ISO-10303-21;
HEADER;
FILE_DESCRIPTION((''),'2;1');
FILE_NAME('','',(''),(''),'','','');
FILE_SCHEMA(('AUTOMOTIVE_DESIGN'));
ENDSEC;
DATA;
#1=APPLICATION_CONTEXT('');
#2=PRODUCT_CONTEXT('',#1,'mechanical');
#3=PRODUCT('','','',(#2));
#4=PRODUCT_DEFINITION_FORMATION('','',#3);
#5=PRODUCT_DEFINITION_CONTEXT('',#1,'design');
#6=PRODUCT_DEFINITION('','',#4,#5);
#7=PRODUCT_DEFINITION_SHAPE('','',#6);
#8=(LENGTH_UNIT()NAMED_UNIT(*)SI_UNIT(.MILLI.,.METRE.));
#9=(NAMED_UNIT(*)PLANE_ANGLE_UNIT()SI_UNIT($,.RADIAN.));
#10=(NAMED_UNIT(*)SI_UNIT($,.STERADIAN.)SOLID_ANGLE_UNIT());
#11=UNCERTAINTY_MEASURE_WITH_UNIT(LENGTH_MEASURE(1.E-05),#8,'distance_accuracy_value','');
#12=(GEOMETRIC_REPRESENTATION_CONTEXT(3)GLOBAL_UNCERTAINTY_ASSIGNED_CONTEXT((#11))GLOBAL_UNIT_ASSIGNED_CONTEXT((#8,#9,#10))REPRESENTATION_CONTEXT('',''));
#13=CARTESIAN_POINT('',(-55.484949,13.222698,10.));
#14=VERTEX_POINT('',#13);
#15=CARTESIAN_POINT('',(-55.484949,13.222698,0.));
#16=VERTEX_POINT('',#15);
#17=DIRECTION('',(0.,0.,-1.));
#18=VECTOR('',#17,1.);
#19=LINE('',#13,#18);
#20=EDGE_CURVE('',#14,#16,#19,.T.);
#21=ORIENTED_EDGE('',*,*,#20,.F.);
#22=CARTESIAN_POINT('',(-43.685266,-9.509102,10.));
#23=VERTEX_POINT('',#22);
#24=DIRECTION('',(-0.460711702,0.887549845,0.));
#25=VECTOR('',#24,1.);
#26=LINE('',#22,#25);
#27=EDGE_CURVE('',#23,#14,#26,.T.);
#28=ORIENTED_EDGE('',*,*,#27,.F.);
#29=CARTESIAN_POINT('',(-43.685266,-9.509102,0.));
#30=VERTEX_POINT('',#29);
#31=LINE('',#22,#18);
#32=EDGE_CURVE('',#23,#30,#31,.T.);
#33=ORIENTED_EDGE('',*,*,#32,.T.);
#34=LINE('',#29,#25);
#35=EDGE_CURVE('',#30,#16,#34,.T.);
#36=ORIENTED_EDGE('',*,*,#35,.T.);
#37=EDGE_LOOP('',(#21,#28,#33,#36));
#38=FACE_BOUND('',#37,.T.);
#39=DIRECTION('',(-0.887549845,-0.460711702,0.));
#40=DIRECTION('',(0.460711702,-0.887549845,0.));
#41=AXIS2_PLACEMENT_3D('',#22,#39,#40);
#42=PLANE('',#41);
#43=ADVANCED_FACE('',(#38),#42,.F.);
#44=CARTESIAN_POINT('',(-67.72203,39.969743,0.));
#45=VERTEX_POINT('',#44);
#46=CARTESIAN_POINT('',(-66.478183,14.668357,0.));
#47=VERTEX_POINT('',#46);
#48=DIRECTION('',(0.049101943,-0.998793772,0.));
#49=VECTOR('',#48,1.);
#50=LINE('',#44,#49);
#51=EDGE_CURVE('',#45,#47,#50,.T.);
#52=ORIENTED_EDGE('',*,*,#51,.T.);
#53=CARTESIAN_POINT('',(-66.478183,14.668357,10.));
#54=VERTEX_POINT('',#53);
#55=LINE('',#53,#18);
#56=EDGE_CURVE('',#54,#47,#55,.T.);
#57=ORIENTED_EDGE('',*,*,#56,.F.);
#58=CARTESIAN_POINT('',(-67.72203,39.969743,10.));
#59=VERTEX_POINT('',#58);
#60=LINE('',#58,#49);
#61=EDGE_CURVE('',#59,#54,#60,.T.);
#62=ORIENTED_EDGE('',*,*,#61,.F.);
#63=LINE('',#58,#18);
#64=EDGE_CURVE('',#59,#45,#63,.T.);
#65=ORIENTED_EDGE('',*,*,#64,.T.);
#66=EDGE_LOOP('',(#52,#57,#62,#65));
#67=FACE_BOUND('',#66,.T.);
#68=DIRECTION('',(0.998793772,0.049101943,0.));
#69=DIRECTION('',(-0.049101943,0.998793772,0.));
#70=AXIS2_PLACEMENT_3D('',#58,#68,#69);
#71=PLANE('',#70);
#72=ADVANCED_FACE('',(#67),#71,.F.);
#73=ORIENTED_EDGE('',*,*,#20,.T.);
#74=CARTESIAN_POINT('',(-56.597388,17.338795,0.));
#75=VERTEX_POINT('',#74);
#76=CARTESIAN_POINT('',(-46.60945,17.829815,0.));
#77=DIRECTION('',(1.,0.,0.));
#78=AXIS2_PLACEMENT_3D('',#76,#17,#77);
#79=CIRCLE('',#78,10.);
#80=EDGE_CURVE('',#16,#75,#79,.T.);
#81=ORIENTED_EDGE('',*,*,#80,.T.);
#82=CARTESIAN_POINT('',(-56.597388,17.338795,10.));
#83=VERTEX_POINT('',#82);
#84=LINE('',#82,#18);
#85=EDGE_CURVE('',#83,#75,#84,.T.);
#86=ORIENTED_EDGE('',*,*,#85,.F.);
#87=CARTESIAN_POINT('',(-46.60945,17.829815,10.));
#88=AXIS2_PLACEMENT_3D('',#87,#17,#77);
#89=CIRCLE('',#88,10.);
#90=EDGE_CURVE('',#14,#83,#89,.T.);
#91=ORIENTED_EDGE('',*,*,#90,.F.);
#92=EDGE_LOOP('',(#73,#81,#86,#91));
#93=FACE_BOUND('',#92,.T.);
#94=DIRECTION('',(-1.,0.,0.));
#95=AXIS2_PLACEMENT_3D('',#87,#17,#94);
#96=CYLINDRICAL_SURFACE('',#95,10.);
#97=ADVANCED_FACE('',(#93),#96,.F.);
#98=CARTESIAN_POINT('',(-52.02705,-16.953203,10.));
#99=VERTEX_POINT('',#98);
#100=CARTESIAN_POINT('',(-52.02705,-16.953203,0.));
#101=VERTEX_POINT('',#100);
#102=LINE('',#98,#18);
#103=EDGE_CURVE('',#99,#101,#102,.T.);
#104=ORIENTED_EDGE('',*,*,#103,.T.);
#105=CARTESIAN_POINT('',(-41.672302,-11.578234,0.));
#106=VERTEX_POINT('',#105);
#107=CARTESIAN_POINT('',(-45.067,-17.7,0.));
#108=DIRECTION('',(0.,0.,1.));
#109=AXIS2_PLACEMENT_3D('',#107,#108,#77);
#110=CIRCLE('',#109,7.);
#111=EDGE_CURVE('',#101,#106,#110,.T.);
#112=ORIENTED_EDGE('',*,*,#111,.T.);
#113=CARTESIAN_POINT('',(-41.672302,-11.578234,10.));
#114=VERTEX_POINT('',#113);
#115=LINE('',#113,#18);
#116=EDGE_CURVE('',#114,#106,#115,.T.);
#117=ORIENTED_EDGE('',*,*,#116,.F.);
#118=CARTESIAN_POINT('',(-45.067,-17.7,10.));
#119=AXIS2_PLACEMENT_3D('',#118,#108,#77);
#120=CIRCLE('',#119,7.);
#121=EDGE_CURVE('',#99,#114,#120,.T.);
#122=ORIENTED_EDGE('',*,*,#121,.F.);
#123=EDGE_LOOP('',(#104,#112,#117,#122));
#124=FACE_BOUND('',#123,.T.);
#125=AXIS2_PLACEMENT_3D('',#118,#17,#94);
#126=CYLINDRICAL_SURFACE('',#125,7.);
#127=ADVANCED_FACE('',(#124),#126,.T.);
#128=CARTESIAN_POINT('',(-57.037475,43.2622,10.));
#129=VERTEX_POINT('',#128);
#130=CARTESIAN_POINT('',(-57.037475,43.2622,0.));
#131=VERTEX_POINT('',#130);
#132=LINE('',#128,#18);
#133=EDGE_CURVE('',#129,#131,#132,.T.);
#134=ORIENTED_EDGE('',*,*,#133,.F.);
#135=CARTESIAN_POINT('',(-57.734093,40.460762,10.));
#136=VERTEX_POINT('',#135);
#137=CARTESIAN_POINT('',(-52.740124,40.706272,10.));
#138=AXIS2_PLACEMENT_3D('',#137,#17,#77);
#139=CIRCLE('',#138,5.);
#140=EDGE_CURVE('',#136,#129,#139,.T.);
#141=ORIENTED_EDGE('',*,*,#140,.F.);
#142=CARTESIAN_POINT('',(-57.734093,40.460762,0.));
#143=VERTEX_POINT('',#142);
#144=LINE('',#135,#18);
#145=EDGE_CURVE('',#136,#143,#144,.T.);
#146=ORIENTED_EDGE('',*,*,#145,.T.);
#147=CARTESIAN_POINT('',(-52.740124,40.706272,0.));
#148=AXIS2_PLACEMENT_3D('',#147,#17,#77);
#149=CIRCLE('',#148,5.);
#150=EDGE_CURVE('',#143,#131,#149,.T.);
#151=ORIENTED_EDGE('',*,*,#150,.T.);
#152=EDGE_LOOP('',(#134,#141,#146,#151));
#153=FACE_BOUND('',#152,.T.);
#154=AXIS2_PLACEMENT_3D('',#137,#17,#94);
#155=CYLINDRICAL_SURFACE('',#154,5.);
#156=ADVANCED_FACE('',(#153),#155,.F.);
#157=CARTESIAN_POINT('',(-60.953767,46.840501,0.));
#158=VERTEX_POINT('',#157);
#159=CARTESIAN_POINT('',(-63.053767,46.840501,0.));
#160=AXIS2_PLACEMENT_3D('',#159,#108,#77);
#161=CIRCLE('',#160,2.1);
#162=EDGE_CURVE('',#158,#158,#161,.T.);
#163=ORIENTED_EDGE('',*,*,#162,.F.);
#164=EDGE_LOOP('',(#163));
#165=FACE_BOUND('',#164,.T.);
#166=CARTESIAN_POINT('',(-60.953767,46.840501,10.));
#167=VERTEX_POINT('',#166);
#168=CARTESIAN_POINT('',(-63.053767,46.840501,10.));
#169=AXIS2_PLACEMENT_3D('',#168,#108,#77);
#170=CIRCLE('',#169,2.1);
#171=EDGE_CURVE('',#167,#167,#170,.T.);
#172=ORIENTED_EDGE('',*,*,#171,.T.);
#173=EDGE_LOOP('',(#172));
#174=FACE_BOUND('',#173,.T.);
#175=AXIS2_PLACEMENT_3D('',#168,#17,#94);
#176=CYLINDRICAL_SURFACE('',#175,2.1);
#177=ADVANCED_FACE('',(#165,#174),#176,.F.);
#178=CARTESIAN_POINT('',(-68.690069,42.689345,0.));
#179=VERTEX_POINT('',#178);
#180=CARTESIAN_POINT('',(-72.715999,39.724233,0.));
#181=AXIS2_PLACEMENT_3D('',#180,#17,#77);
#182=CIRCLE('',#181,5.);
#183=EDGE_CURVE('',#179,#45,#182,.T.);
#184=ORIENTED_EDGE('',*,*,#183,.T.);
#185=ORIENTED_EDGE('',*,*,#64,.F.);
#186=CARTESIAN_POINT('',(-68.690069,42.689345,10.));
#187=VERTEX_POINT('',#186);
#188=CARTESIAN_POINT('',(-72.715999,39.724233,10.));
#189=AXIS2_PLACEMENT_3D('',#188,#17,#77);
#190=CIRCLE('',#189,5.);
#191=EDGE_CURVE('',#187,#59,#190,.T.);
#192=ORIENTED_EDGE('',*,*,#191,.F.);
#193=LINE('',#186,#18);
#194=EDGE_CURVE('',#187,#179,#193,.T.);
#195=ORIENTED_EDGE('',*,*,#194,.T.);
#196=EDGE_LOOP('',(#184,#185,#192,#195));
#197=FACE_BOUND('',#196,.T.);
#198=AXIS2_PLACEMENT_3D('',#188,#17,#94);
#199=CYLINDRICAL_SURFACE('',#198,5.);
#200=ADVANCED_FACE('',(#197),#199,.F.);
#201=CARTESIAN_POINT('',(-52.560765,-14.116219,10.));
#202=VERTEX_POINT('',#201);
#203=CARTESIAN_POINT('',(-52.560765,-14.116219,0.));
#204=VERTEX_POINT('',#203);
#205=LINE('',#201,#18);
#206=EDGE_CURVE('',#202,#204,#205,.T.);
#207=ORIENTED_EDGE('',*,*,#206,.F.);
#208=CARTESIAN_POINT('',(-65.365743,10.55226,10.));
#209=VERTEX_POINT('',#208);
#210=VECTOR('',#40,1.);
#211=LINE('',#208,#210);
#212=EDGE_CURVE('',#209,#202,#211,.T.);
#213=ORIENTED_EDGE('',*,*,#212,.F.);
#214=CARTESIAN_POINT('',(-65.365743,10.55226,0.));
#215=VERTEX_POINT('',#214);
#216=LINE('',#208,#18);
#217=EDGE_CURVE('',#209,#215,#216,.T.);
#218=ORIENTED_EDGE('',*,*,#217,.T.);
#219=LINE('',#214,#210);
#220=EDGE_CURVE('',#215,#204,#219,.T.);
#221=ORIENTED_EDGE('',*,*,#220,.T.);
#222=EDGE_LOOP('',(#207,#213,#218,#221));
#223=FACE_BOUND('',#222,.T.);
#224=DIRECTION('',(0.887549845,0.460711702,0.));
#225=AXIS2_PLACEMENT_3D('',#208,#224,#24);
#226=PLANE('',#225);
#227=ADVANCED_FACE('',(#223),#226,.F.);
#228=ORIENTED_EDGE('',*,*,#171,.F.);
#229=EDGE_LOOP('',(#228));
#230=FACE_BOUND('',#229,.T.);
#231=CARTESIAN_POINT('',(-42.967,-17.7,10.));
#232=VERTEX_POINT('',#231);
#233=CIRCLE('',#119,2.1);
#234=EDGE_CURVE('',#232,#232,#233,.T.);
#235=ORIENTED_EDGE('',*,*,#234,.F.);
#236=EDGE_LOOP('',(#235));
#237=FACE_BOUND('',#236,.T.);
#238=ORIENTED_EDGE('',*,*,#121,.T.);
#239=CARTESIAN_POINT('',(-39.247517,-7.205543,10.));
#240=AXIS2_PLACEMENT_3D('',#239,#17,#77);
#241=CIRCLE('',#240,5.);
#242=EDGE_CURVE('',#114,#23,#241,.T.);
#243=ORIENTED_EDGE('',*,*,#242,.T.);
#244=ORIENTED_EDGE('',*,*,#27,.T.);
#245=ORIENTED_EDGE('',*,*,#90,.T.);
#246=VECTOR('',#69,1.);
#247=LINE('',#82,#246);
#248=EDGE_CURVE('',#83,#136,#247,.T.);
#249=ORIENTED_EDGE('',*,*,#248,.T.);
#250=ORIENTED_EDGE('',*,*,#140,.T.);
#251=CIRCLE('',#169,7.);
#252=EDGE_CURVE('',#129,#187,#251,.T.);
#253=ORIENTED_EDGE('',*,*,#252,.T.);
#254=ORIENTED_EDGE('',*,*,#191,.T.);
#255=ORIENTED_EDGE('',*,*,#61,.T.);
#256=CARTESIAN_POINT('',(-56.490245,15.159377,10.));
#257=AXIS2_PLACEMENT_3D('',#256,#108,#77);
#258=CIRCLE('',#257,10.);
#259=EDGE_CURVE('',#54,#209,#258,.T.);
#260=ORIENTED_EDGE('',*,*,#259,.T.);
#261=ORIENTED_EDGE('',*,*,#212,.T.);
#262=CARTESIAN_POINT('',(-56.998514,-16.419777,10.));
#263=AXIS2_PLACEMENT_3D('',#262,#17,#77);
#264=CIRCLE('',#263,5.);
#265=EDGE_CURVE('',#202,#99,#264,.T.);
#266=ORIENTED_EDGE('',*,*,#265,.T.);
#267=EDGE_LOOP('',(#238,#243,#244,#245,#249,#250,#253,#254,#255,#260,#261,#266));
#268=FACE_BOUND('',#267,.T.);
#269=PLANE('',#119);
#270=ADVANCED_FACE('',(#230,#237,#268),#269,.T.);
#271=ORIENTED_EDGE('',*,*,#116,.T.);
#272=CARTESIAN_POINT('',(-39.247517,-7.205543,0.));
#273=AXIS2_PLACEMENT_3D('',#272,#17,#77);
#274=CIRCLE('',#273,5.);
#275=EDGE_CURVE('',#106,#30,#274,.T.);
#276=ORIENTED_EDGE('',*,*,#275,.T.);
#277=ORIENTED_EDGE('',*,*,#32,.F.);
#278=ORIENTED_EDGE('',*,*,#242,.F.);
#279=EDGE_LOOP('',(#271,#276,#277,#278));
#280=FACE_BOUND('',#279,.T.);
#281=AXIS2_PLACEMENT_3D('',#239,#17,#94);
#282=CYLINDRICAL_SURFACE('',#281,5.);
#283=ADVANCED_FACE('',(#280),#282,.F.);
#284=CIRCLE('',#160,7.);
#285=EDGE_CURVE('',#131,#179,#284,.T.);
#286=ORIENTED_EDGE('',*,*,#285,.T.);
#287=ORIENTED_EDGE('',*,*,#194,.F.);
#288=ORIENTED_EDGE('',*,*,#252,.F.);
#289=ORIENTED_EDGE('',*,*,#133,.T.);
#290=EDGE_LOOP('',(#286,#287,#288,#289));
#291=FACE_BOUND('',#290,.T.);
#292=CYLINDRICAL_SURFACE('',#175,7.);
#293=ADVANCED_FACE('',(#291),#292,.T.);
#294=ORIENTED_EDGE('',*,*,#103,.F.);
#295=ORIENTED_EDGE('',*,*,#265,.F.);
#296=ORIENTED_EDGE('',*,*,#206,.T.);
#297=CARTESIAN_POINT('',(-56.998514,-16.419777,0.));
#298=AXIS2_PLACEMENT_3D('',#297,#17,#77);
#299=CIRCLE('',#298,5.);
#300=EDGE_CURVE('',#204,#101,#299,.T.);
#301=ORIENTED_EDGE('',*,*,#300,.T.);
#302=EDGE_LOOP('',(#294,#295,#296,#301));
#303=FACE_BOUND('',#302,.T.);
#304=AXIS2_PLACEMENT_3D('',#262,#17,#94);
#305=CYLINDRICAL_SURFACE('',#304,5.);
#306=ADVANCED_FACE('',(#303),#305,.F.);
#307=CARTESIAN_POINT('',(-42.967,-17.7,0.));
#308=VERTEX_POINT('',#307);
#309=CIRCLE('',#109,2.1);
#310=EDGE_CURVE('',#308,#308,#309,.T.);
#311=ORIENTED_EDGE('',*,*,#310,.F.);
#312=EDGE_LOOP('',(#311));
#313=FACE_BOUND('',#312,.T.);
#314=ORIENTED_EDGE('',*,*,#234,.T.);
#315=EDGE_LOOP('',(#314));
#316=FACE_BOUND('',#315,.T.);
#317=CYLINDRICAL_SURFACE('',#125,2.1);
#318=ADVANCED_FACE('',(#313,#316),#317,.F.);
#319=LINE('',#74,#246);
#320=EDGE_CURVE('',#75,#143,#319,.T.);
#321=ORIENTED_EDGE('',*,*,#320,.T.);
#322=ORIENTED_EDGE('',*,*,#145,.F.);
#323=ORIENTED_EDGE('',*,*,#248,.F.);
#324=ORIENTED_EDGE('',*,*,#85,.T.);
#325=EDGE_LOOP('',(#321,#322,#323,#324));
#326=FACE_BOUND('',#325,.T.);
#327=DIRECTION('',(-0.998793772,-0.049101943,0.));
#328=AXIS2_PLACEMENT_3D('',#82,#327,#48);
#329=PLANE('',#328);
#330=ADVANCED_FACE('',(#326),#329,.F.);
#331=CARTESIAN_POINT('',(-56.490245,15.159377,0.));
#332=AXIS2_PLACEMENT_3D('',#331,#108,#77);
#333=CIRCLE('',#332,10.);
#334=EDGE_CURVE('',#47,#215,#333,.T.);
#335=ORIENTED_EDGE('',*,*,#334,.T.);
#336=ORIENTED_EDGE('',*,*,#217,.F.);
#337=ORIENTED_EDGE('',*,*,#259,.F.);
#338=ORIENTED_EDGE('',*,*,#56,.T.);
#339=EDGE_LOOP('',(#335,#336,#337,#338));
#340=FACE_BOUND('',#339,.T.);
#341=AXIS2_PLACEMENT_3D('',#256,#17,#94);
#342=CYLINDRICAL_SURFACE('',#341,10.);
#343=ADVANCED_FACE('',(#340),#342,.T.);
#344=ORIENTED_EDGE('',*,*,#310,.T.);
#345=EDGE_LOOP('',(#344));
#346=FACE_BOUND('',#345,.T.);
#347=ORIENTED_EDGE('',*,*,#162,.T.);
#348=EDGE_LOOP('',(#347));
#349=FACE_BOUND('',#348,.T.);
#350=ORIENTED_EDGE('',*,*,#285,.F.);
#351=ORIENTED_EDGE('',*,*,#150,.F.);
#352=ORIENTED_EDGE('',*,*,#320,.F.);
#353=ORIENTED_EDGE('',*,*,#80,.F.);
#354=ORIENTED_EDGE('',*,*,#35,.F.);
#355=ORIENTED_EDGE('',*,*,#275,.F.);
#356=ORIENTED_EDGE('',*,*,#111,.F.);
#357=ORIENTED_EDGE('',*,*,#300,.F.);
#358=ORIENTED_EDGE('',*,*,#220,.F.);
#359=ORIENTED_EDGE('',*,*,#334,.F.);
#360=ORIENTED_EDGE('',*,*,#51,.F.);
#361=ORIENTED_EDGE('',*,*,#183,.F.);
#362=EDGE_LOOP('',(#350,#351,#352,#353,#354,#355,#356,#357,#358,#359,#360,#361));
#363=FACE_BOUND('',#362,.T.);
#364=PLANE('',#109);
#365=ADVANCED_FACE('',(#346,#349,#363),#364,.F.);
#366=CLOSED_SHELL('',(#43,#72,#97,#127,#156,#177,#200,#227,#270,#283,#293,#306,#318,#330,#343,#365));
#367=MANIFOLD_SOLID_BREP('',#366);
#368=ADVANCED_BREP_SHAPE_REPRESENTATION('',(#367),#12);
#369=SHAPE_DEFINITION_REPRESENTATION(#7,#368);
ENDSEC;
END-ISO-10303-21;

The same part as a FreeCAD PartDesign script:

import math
import FreeCAD as App
import Part
import Sketcher

V = App.Vector

doc = App.newDocument("Part")
body = doc.addObject("PartDesign::Body", "Body")

# Sketch on XY plane
sketch1 = body.newObject("Sketcher::SketchObject", "Sketch")
sketch1.AttachmentSupport = (doc.getObject("XY_Plane"), [""])
sketch1.MapMode = "FlatFace"
sketch1.addGeometry(Part.LineSegment(V(-43.7, -9.5, 0), V(-55.5, 13.2, 0)), False)
sketch1.addGeometry(Part.ArcOfCircle(Part.Circle(V(-46.6, 17.8, 0), V(0, 0, 1), 10), math.radians(-177), math.radians(-153)), False)
sketch1.addGeometry(Part.LineSegment(V(-56.6, 17.3, 0), V(-57.7, 40.5, 0)), False)
sketch1.addGeometry(Part.ArcOfCircle(Part.Circle(V(-52.7, 40.7, 0), V(0, 0, 1), 5), math.radians(149), math.radians(183)), False)
sketch1.addGeometry(Part.ArcOfCircle(Part.Circle(V(-63.1, 46.8, 0), V(0, 0, 1), 7), math.radians(-31), math.radians(216)), False)
sketch1.addGeometry(Part.ArcOfCircle(Part.Circle(V(-72.7, 39.7, 0), V(0, 0, 1), 5), math.radians(3), math.radians(36)), False)
sketch1.addGeometry(Part.LineSegment(V(-67.7, 40, 0), V(-66.5, 14.7, 0)), False)
sketch1.addGeometry(Part.ArcOfCircle(Part.Circle(V(-56.5, 15.2, 0), V(0, 0, 1), 10), math.radians(-177), math.radians(-153)), False)
sketch1.addGeometry(Part.LineSegment(V(-65.4, 10.6, 0), V(-52.6, -14.1, 0)), False)
sketch1.addGeometry(Part.ArcOfCircle(Part.Circle(V(-57, -16.4, 0), V(0, 0, 1), 5), math.radians(-6), math.radians(27)), False)
sketch1.addGeometry(Part.ArcOfCircle(Part.Circle(V(-45.1, -17.7, 0), V(0, 0, 1), 7), math.radians(174), math.radians(421)), False)
sketch1.addGeometry(Part.ArcOfCircle(Part.Circle(V(-39.2, -7.2, 0), V(0, 0, 1), 5), math.radians(-153), math.radians(-119)), False)
sketch1.addGeometry(Part.Circle(V(-45.1, -17.7, 0), V(0, 0, 1), 2.1), False)
sketch1.addGeometry(Part.Circle(V(-63.1, 46.8, 0), V(0, 0, 1), 2.1), False)
sketch1.addConstraint(Sketcher.Constraint("Tangent", 0, 2, 1, 2))
sketch1.addConstraint(Sketcher.Constraint("Tangent", 1, 1, 2, 1))
sketch1.addConstraint(Sketcher.Constraint("Tangent", 2, 2, 3, 2))
sketch1.addConstraint(Sketcher.Constraint("Tangent", 3, 1, 4, 1))
sketch1.addConstraint(Sketcher.Constraint("Tangent", 4, 2, 5, 2))
sketch1.addConstraint(Sketcher.Constraint("Tangent", 5, 1, 6, 1))
sketch1.addConstraint(Sketcher.Constraint("Tangent", 6, 2, 7, 1))
sketch1.addConstraint(Sketcher.Constraint("Tangent", 7, 2, 8, 1))
sketch1.addConstraint(Sketcher.Constraint("Tangent", 8, 2, 9, 2))
sketch1.addConstraint(Sketcher.Constraint("Tangent", 9, 1, 10, 1))
sketch1.addConstraint(Sketcher.Constraint("Tangent", 10, 2, 11, 2))
sketch1.addConstraint(Sketcher.Constraint("Tangent", 11, 1, 0, 1))
sketch1.addConstraint(Sketcher.Constraint("Coincident", 12, 3, 10, 3))
sketch1.addConstraint(Sketcher.Constraint("Coincident", 13, 3, 4, 3))
sketch1.addConstraint(Sketcher.Constraint("Equal", 3, 5))
sketch1.addConstraint(Sketcher.Constraint("Equal", 1, 7))
sketch1.addConstraint(Sketcher.Constraint("Equal", 5, 9))
sketch1.addConstraint(Sketcher.Constraint("Equal", 4, 10))
sketch1.addConstraint(Sketcher.Constraint("Equal", 9, 11))
sketch1.addConstraint(Sketcher.Constraint("Equal", 12, 13))
sketch1.addConstraint(Sketcher.Constraint("Parallel", 2, 6))
sketch1.addConstraint(Sketcher.Constraint("Parallel", 0, 8))
sketch1.addConstraint(Sketcher.Constraint("Radius", 1, 10.0))
sketch1.addConstraint(Sketcher.Constraint("Radius", 3, 5.0))
sketch1.addConstraint(Sketcher.Constraint("Radius", 4, 7.0))
sketch1.addConstraint(Sketcher.Constraint("Diameter", 12, 4.2))
sketch1.addConstraint(Sketcher.Constraint("DistanceY", 10, 3, -1, 1, 17.7))
sketch1.addConstraint(Sketcher.Constraint("DistanceX", 5, 3, -1, 1, 72.715999))
sketch1.addConstraint(Sketcher.Constraint("DistanceX", 10, 3, -1, 1, 45.067))
sketch1.addConstraint(Sketcher.Constraint("DistanceY", -1, 1, 4, 3, 46.840501))
sketch1.addConstraint(Sketcher.Constraint("DistanceY", -1, 1, 3, 1, 43.2622))
sketch1.addConstraint(Sketcher.Constraint("DistanceX", 10, 2, -1, 1, 41.672302))
sketch1.addConstraint(Sketcher.Constraint("DistanceY", 11, 1, -1, 1, 9.509102))
sketch1.addConstraint(Sketcher.Constraint("DistanceX", 8, 2, 11, 1, 8.875498))
sketch1.addConstraint(Sketcher.Constraint("Distance", 2, 23.149891))
sketch1.addConstraint(Sketcher.Constraint("Distance", 6, 25.331941))
pad1 = body.newObject("PartDesign::Pad", "Pad")
pad1.Profile = sketch1
pad1.Length = 10

doc.recompute()
